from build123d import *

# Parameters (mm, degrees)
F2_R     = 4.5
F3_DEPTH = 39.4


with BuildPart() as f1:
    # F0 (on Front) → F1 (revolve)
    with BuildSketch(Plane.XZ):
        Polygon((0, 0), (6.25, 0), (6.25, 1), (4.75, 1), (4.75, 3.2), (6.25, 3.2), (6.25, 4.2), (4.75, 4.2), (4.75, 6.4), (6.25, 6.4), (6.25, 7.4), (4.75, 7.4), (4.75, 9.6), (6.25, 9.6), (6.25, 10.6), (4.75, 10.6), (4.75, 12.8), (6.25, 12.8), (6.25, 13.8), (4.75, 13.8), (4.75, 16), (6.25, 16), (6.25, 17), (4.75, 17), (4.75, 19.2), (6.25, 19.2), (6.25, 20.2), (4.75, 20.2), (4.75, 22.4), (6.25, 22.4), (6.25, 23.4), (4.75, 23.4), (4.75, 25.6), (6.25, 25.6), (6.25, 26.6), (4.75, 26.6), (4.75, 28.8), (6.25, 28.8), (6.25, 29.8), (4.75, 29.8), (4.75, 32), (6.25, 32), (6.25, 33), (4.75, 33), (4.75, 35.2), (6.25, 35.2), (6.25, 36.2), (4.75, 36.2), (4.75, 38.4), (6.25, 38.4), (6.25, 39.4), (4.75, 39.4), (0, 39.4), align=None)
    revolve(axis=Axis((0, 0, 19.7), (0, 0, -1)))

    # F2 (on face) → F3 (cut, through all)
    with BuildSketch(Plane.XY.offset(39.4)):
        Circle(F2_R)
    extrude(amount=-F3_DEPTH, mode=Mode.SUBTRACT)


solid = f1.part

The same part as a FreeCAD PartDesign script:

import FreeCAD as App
import Part
import Sketcher
from FreeCAD import Vector
Q = App.Units.Quantity


def add_polygon(sketch, points):
    """Adds a closed chain of lines whose ends are joined by coincident constraints."""
    first, n = sketch.GeometryCount, len(points)
    for a, b in zip(points, points[1:] + points[:1]):
        sketch.addGeometry(Part.LineSegment(App.Vector(*a, 0), App.Vector(*b, 0)), False)
    for i in range(n):
        sketch.addConstraint(Sketcher.Constraint("Coincident", first + i, 2, first + (i + 1) % n, 1))

doc = App.newDocument("Part")
params = doc.addObject("Spreadsheet::Sheet", "Params")
for row, (alias, value) in enumerate([
    ("sketch1_height", "1 mm"),
    ("sketch1_width", "1.5 mm"),
    ("sketch1_height2", "2.2 mm"),
    ("sketch1_width2", "6.25 mm"),
    ("revolution_angle", "360 deg"),
    ("sketch2_diameter", "9 mm"),
], start=1):
    params.set(f"A{row}", alias)
    params.set(f"B{row}", "=" + value)
    params.setAlias(f"B{row}", alias)

body = doc.addObject("PartDesign::Body", "Body")

sketch1 = body.newObject("Sketcher::SketchObject", "Sketch")
sketch1.AttachmentSupport = (doc.getObject("XZ_Plane"), [""])
sketch1.MapMode = "FlatFace"
add_polygon(sketch1, [(0, 0), (6.2, 0), (6.2, 1), (4.8, 1), (4.8, 3.2), (6.2, 3.2), (6.2, 4.2), (4.8, 4.2), (4.8, 6.4), (6.2, 6.4), (6.2, 7.4), (4.8, 7.4), (4.8, 9.6), (6.2, 9.6), (6.2, 10.6), (4.8, 10.6), (4.8, 12.8), (6.2, 12.8), (6.2, 13.8), (4.8, 13.8), (4.8, 16), (6.2, 16), (6.2, 17), (4.8, 17), (4.8, 19.2), (6.2, 19.2), (6.2, 20.2), (4.8, 20.2), (4.8, 22.4), (6.2, 22.4), (6.2, 23.4), (4.8, 23.4), (4.8, 25.6), (6.2, 25.6), (6.2, 26.6), (4.8, 26.6), (4.8, 28.8), (6.2, 28.8), (6.2, 29.8), (4.8, 29.8), (4.8, 32), (6.2, 32), (6.2, 33), (4.8, 33), (4.8, 35.2), (6.2, 35.2), (6.2, 36.2), (4.8, 36.2), (4.8, 38.4), (6.2, 38.4), (6.2, 39.4), (0, 39.4)])
sketch1.addConstraint([
    Sketcher.Constraint("Horizontal", 0),
    Sketcher.Constraint("Vertical", 1),
    Sketcher.Constraint("Horizontal", 2),
    Sketcher.Constraint("Vertical", 3),
    Sketcher.Constraint("Horizontal", 4),
    Sketcher.Constraint("Vertical", 5),
    Sketcher.Constraint("Horizontal", 6),
    Sketcher.Constraint("Vertical", 7),
    Sketcher.Constraint("Horizontal", 8),
    Sketcher.Constraint("Vertical", 9),
    Sketcher.Constraint("Horizontal", 10),
    Sketcher.Constraint("Vertical", 11),
    Sketcher.Constraint("Horizontal", 12),
    Sketcher.Constraint("Vertical", 13),
    Sketcher.Constraint("Horizontal", 14),
    Sketcher.Constraint("Vertical", 15),
    Sketcher.Constraint("Horizontal", 16),
    Sketcher.Constraint("Vertical", 17),
    Sketcher.Constraint("Horizontal", 18),
    Sketcher.Constraint("Vertical", 19),
    Sketcher.Constraint("Horizontal", 20),
    Sketcher.Constraint("Vertical", 21),
    Sketcher.Constraint("Horizontal", 22),
    Sketcher.Constraint("Vertical", 23),
    Sketcher.Constraint("Horizontal", 24),
    Sketcher.Constraint("Vertical", 25),
    Sketcher.Constraint("Horizontal", 26),
    Sketcher.Constraint("Vertical", 27),
    Sketcher.Constraint("Horizontal", 28),
    Sketcher.Constraint("Vertical", 29),
    Sketcher.Constraint("Horizontal", 30),
    Sketcher.Constraint("Vertical", 31),
    Sketcher.Constraint("Horizontal", 32),
    Sketcher.Constraint("Vertical", 33),
    Sketcher.Constraint("Horizontal", 34),
    Sketcher.Constraint("Vertical", 35),
    Sketcher.Constraint("Horizontal", 36),
    Sketcher.Constraint("Vertical", 37),
    Sketcher.Constraint("Horizontal", 38),
    Sketcher.Constraint("Vertical", 39),
    Sketcher.Constraint("Horizontal", 40),
    Sketcher.Constraint("Vertical", 41),
    Sketcher.Constraint("Horizontal", 42),
    Sketcher.Constraint("Vertical", 43),
    Sketcher.Constraint("Horizontal", 44),
    Sketcher.Constraint("Vertical", 45),
    Sketcher.Constraint("Horizontal", 46),
    Sketcher.Constraint("Vertical", 47),
    Sketcher.Constraint("Horizontal", 48),
    Sketcher.Constraint("Vertical", 49),
    Sketcher.Constraint("Horizontal", 50),
    Sketcher.Constraint("Vertical", 51),
    Sketcher.Constraint("Coincident", 51, 2, -1, 1),
    Sketcher.Constraint("Vertical", 1, 2, 4, 2),
    Sketcher.Constraint("Vertical", 3, 2, 6, 2),
    Sketcher.Constraint("Vertical", 5, 2, 8, 2),
    Sketcher.Constraint("Vertical", 7, 2, 10, 2),
    Sketcher.Constraint("Vertical", 9, 2, 12, 2),
    Sketcher.Constraint("Vertical", 11, 2, 14, 2),
    Sketcher.Constraint("Vertical", 13, 2, 16, 2),
    Sketcher.Constraint("Vertical", 15, 2, 18, 2),
    Sketcher.Constraint("Vertical", 17, 2, 20, 2),
    Sketcher.Constraint("Vertical", 19, 2, 22, 2),
    Sketcher.Constraint("Vertical", 21, 2, 24, 2),
    Sketcher.Constraint("Vertical", 23, 2, 26, 2),
    Sketcher.Constraint("Vertical", 25, 2, 28, 2),
    Sketcher.Constraint("Vertical", 27, 2, 30, 2),
    Sketcher.Constraint("Vertical", 29, 2, 32, 2),
    Sketcher.Constraint("Vertical", 31, 2, 34, 2),
    Sketcher.Constraint("Vertical", 33, 2, 36, 2),
    Sketcher.Constraint("Vertical", 35, 2, 38, 2),
    Sketcher.Constraint("Vertical", 37, 2, 40, 2),
    Sketcher.Constraint("Vertical", 39, 2, 42, 2),
    Sketcher.Constraint("Vertical", 41, 2, 44, 2),
    Sketcher.Constraint("Vertical", 43, 2, 46, 2),
    Sketcher.Constraint("Vertical", 45, 2, 48, 2),
    Sketcher.Constraint("Equal", 1, 5),
    Sketcher.Constraint("Equal", 3, 7),
    Sketcher.Constraint("Equal", 5, 9),
    Sketcher.Constraint("Equal", 7, 11),
    Sketcher.Constraint("Equal", 9, 13),
    Sketcher.Constraint("Equal", 11, 15),
    Sketcher.Constraint("Equal", 13, 17),
    Sketcher.Constraint("Equal", 15, 19),
    Sketcher.Constraint("Equal", 17, 21),
    Sketcher.Constraint("Equal", 19, 23),
    Sketcher.Constraint("Equal", 21, 25),
    Sketcher.Constraint("Equal", 23, 27),
    Sketcher.Constraint("Equal", 25, 29),
    Sketcher.Constraint("Equal", 27, 31),
    Sketcher.Constraint("Equal", 29, 33),
    Sketcher.Constraint("Equal", 31, 35),
    Sketcher.Constraint("Equal", 33, 37),
    Sketcher.Constraint("Equal", 35, 39),
    Sketcher.Constraint("Equal", 37, 41),
    Sketcher.Constraint("Equal", 39, 43),
    Sketcher.Constraint("Equal", 41, 45),
    Sketcher.Constraint("Equal", 43, 47),
    Sketcher.Constraint("Equal", 45, 49),
    Sketcher.Constraint("DistanceY", 1, 1, 1, 2, Q("1 mm")),
    Sketcher.Constraint("DistanceX", 2, 2, 2, 1, Q("1.5 mm")),
    Sketcher.Constraint("DistanceY", 3, 1, 3, 2, Q("2.2 mm")),
    Sketcher.Constraint("DistanceX", 0, 1, 0, 2, Q("6.25 mm")),
])
sketch1.setExpression("Constraints[151]", "Params.sketch1_height")
sketch1.setExpression("Constraints[152]", "Params.sketch1_width")
sketch1.setExpression("Constraints[153]", "Params.sketch1_height2")
sketch1.setExpression("Constraints[154]", "Params.sketch1_width2")
revolution = body.newObject("PartDesign::Revolution", "Revolution")
revolution.Profile = sketch1
revolution.ReferenceAxis = (sketch1, ["V_Axis"])
revolution.setExpression("Angle", "Params.revolution_angle")

sketch2 = body.newObject("Sketcher::SketchObject", "Sketch001")
sketch2.AttachmentSupport = (doc.getObject("XY_Plane"), [""])
sketch2.MapMode = "FlatFace"
sketch2.AttachmentOffset = App.Placement(Vector(0, 0, 39.4), App.Rotation())
sketch2.addGeometry(Part.Circle(Vector(0, 0, 0), Vector(0, 0, 1), 4.5), False)
sketch2.addConstraint([
    Sketcher.Constraint("Coincident", 0, 3, -1, 1),
    Sketcher.Constraint("Diameter", 0, Q("9 mm")),
])
sketch2.setExpression("Constraints[1]", "Params.sketch2_diameter")
pocket1 = body.newObject("PartDesign::Pocket", "Pocket")
pocket1.Profile = sketch2
pocket1.Type = "ThroughAll"

doc.recompute()
